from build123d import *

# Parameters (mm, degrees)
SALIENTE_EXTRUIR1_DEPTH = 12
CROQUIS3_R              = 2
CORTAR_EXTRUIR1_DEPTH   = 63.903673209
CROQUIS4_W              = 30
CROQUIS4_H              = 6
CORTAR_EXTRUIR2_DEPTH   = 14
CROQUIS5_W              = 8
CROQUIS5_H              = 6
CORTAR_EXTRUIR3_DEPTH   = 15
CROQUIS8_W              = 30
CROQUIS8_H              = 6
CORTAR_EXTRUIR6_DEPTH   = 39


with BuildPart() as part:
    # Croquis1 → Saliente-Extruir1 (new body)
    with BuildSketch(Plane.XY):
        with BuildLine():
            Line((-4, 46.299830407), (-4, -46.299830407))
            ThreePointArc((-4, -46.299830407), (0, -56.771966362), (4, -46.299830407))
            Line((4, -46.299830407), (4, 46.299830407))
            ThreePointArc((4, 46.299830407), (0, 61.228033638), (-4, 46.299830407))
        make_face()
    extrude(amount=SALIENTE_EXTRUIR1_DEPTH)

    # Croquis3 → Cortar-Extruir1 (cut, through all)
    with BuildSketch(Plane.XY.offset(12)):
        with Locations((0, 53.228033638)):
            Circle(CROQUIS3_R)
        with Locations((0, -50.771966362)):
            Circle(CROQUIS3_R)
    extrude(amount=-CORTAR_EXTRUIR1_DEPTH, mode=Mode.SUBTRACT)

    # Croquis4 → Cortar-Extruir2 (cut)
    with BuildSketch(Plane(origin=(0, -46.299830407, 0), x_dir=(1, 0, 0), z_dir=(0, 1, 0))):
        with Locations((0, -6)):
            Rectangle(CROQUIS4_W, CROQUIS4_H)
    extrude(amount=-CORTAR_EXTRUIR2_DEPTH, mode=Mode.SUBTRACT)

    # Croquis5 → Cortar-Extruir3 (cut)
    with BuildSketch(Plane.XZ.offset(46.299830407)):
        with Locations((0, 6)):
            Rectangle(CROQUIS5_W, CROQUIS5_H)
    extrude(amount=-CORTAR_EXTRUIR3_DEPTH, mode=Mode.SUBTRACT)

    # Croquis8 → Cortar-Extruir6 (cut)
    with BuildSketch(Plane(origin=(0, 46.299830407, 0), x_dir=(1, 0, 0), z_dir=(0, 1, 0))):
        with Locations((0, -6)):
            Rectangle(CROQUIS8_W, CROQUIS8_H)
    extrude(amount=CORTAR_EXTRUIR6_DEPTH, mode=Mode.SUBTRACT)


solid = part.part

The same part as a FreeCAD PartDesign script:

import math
import FreeCAD as App
import Part
import Sketcher
from FreeCAD import Vector
Q = App.Units.Quantity

doc = App.newDocument("Part")
params = doc.addObject("Spreadsheet::Sheet", "Params")
for row, (alias, value) in enumerate([
    ("sketch1_radius", "6 mm"),
    ("sketch1_radius2", "8 mm"),
    ("pad1_length", "12 mm"),
    ("sketch2_diameter", "4 mm"),
    ("sketch3_width", "30 mm"),
    ("sketch3_height", "6 mm"),
    ("pocket2_length", "14 mm"),
    ("sketch4_width", "8 mm"),
    ("sketch4_height", "6 mm"),
    ("pocket3_length", "15 mm"),
    ("sketch5_width", "30 mm"),
    ("sketch5_height", "6 mm"),
    ("pocket4_length", "39 mm"),
], start=1):
    params.set(f"A{row}", alias)
    params.set(f"B{row}", "=" + value)
    params.setAlias(f"B{row}", alias)

body = doc.addObject("PartDesign::Body", "Body")

sketch1 = body.newObject("Sketcher::SketchObject", "Sketch")
sketch1.AttachmentSupport = (doc.getObject("XY_Plane"), [""])
sketch1.MapMode = "FlatFace"
sketch1.addGeometry(Part.LineSegment(Vector(-4, 46, 0), Vector(-4, -46, 0)), False)
sketch1.addGeometry(Part.ArcOfCircle(Part.Circle(Vector(0, -51, 0), Vector(0, 0, 1), 6), math.radians(132), math.radians(408)), False)
sketch1.addGeometry(Part.LineSegment(Vector(4, -46, 0), Vector(4, 46, 0)), False)
sketch1.addGeometry(Part.ArcOfCircle(Part.Circle(Vector(0, 53, 0), Vector(0, 0, 1), 8), math.radians(-60), math.radians(240)), False)
sketch1.addConstraint(Sketcher.Constraint("Coincident", 0, 2, 1, 1))
sketch1.addConstraint(Sketcher.Constraint("Coincident", 1, 2, 2, 1))
sketch1.addConstraint(Sketcher.Constraint("Coincident", 2, 2, 3, 1))
sketch1.addConstraint(Sketcher.Constraint("Coincident", 3, 2, 0, 1))
sketch1.addConstraint(Sketcher.Constraint("Vertical", 0))
sketch1.addConstraint(Sketcher.Constraint("Vertical", 2))
sketch1.addConstraint(Sketcher.Constraint("Symmetric", 0, 2, 2, 2, -1, 1))
sketch1.addConstraint(Sketcher.Constraint("PointOnObject", 1, 3, -2))
sketch1.addConstraint(Sketcher.Constraint("PointOnObject", 3, 3, -2))
sketch1.addConstraint(Sketcher.Constraint("Radius", 1, Q("6 mm")))
sketch1.addConstraint(Sketcher.Constraint("Radius", 3, Q("8 mm")))
sketch1.addConstraint(Sketcher.Constraint("DistanceX", 0, 2, -1, 1, Q("4 mm")))
sketch1.addConstraint(Sketcher.Constraint("DistanceY", 1, 3, 3, 3, Q("104 mm")))
sketch1.setExpression("Constraints[9]", "Params.sketch1_radius")
sketch1.setExpression("Constraints[10]", "Params.sketch1_radius2")
pad1 = body.newObject("PartDesign::Pad", "Pad")
pad1.Profile = sketch1
pad1.setExpression("Length", "Params.pad1_length")

sketch2 = body.newObject("Sketcher::SketchObject", "Sketch001")
sketch2.AttachmentSupport = (doc.getObject("XY_Plane"), [""])
sketch2.MapMode = "FlatFace"
sketch2.AttachmentOffset = App.Placement(Vector(0, 0, 12), App.Rotation())
sketch2.addGeometry(Part.Circle(Vector(0, 53.2, 0), Vector(0, 0, 1), 2), False)
sketch2.addGeometry(Part.Circle(Vector(0, -50.8, 0), Vector(0, 0, 1), 2), False)
sketch2.addConstraint(Sketcher.Constraint("Equal", 0, 1))
sketch2.addConstraint(Sketcher.Constraint("PointOnObject", 0, 3, -2))
sketch2.addConstraint(Sketcher.Constraint("PointOnObject", 1, 3, -2))
sketch2.addConstraint(Sketcher.Constraint("Diameter", 0, Q("4 mm")))
sketch2.addConstraint(Sketcher.Constraint("DistanceY", 1, 3, 0, 3, Q("104 mm")))
sketch2.addConstraint(Sketcher.Constraint("DistanceY", -1, 1, 0, 3, Q("53.228034 mm")))
sketch2.setExpression("Constraints[3]", "Params.sketch2_diameter")
pocket1 = body.newObject("PartDesign::Pocket", "Pocket")
pocket1.Profile = sketch2
pocket1.Type = "ThroughAll"

sketch3 = body.newObject("Sketcher::SketchObject", "Sketch002")
sketch3.AttachmentSupport = (doc.getObject("XZ_Plane"), [""])
sketch3.MapMode = "FlatFace"
sketch3.AttachmentOffset = App.Placement(Vector(0, 0, 46.29983), App.Rotation())
sketch3.addGeometry(Part.LineSegment(Vector(-15, 3, 0), Vector(-15, 9, 0)), False)
sketch3.addGeometry(Part.LineSegment(Vector(-15, 9, 0), Vector(15, 9, 0)), False)
sketch3.addGeometry(Part.LineSegment(Vector(15, 9, 0), Vector(15, 3, 0)), False)
sketch3.addGeometry(Part.LineSegment(Vector(15, 3, 0), Vector(-15, 3, 0)), False)
sketch3.addConstraint(Sketcher.Constraint("Coincident", 0, 2, 1, 1))
sketch3.addConstraint(Sketcher.Constraint("Coincident", 1, 2, 2, 1))
sketch3.addConstraint(Sketcher.Constraint("Coincident", 2, 2, 3, 1))
sketch3.addConstraint(Sketcher.Constraint("Coincident", 3, 2, 0, 1))
sketch3.addConstraint(Sketcher.Constraint("Vertical", 0))
sketch3.addConstraint(Sketcher.Constraint("Horizontal", 1))
sketch3.addConstraint(Sketcher.Constraint("Vertical", 2))
sketch3.addConstraint(Sketcher.Constraint("Horizontal", 3))
sketch3.addConstraint(Sketcher.Constraint("DistanceX", 1, 1, 1, 2, Q("30 mm")))
sketch3.addConstraint(Sketcher.Constraint("DistanceY", 0, 1, 0, 2, Q("6 mm")))
sketch3.addConstraint(Sketcher.Constraint("DistanceX", 0, 2, -1, 1, Q("15 mm")))
sketch3.addConstraint(Sketcher.Constraint("DistanceY", -1, 1, 0, 2, Q("9 mm")))
sketch3.setExpression("Constraints[8]", "Params.sketch3_width")
sketch3.setExpression("Constraints[9]", "Params.sketch3_height")
pocket2 = body.newObject("PartDesign::Pocket", "Pocket001")
pocket2.Profile = sketch3
pocket2.setExpression("Length", "Params.pocket2_length")
pocket2.Reversed = True

sketch4 = body.newObject("Sketcher::SketchObject", "Sketch003")
sketch4.AttachmentSupport = (doc.getObject("XZ_Plane"), [""])
sketch4.MapMode = "FlatFace"
sketch4.AttachmentOffset = App.Placement(Vector(0, 0, 46.29983), App.Rotation())
sketch4.addGeometry(Part.LineSegment(Vector(-4, 9, 0), Vector(-4, 3, 0)), False)
sketch4.addGeometry(Part.LineSegment(Vector(-4, 3, 0), Vector(4, 3, 0)), False)
sketch4.addGeometry(Part.LineSegment(Vector(4, 3, 0), Vector(4, 9, 0)), False)
sketch4.addGeometry(Part.LineSegment(Vector(4, 9, 0), Vector(-4, 9, 0)), False)
sketch4.addConstraint(Sketcher.Constraint("Coincident", 0, 2, 1, 1))
sketch4.addConstraint(Sketcher.Constraint("Coincident", 1, 2, 2, 1))
sketch4.addConstraint(Sketcher.Constraint("Coincident", 2, 2, 3, 1))
sketch4.addConstraint(Sketcher.Constraint("Coincident", 3, 2, 0, 1))
sketch4.addConstraint(Sketcher.Constraint("Vertical", 0))
sketch4.addConstraint(Sketcher.Constraint("Horizontal", 1))
sketch4.addConstraint(Sketcher.Constraint("Vertical", 2))
sketch4.addConstraint(Sketcher.Constraint("Horizontal", 3))
sketch4.addConstraint(Sketcher.Constraint("DistanceX", 1, 1, 1, 2, Q("8 mm")))
sketch4.addConstraint(Sketcher.Constraint("DistanceY", 0, 2, 0, 1, Q("6 mm")))
sketch4.addConstraint(Sketcher.Constraint("DistanceX", 0, 2, -1, 1, Q("4 mm")))
sketch4.addConstraint(Sketcher.Constraint("DistanceY", -1, 1, 0, 2, Q("3 mm")))
sketch4.setExpression("Constraints[8]", "Params.sketch4_width")
sketch4.setExpression("Constraints[9]", "Params.sketch4_height")
pocket3 = body.newObject("PartDesign::Pocket", "Pocket002")
pocket3.Profile = sketch4
pocket3.setExpression("Length", "Params.pocket3_length")

sketch5 = body.newObject("Sketcher::SketchObject", "Sketch004")
sketch5.AttachmentSupport = (doc.getObject("XZ_Plane"), [""])
sketch5.MapMode = "FlatFace"
sketch5.AttachmentOffset = App.Placement(Vector(0, 0, -46.29983), App.Rotation())
sketch5.addGeometry(Part.LineSegment(Vector(-15, 3, 0), Vector(-15, 9, 0)), False)
sketch5.addGeometry(Part.LineSegment(Vector(-15, 9, 0), Vector(15, 9, 0)), False)
sketch5.addGeometry(Part.LineSegment(Vector(15, 9, 0), Vector(15, 3, 0)), False)
sketch5.addGeometry(Part.LineSegment(Vector(15, 3, 0), Vector(-15, 3, 0)), False)
sketch5.addConstraint(Sketcher.Constraint("Coincident", 0, 2, 1, 1))
sketch5.addConstraint(Sketcher.Constraint("Coincident", 1, 2, 2, 1))
sketch5.addConstraint(Sketcher.Constraint("Coincident", 2, 2, 3, 1))
sketch5.addConstraint(Sketcher.Constraint("Coincident", 3, 2, 0, 1))
sketch5.addConstraint(Sketcher.Constraint("Vertical", 0))
sketch5.addConstraint(Sketcher.Constraint("Horizontal", 1))
sketch5.addConstraint(Sketcher.Constraint("Vertical", 2))
sketch5.addConstraint(Sketcher.Constraint("Horizontal", 3))
sketch5.addConstraint(Sketcher.Constraint("DistanceX", 1, 1, 1, 2, Q("30 mm")))
sketch5.addConstraint(Sketcher.Constraint("DistanceY", 0, 1, 0, 2, Q("6 mm")))
sketch5.addConstraint(Sketcher.Constraint("DistanceX", 0, 2, -1, 1, Q("15 mm")))
sketch5.addConstraint(Sketcher.Constraint("DistanceY", -1, 1, 0, 2, Q("9 mm")))
sketch5.setExpression("Constraints[8]", "Params.sketch5_width")
sketch5.setExpression("Constraints[9]", "Params.sketch5_height")
pocket4 = body.newObject("PartDesign::Pocket", "Pocket003")
pocket4.Profile = sketch5
pocket4.setExpression("Length", "Params.pocket4_length")

doc.recompute()
